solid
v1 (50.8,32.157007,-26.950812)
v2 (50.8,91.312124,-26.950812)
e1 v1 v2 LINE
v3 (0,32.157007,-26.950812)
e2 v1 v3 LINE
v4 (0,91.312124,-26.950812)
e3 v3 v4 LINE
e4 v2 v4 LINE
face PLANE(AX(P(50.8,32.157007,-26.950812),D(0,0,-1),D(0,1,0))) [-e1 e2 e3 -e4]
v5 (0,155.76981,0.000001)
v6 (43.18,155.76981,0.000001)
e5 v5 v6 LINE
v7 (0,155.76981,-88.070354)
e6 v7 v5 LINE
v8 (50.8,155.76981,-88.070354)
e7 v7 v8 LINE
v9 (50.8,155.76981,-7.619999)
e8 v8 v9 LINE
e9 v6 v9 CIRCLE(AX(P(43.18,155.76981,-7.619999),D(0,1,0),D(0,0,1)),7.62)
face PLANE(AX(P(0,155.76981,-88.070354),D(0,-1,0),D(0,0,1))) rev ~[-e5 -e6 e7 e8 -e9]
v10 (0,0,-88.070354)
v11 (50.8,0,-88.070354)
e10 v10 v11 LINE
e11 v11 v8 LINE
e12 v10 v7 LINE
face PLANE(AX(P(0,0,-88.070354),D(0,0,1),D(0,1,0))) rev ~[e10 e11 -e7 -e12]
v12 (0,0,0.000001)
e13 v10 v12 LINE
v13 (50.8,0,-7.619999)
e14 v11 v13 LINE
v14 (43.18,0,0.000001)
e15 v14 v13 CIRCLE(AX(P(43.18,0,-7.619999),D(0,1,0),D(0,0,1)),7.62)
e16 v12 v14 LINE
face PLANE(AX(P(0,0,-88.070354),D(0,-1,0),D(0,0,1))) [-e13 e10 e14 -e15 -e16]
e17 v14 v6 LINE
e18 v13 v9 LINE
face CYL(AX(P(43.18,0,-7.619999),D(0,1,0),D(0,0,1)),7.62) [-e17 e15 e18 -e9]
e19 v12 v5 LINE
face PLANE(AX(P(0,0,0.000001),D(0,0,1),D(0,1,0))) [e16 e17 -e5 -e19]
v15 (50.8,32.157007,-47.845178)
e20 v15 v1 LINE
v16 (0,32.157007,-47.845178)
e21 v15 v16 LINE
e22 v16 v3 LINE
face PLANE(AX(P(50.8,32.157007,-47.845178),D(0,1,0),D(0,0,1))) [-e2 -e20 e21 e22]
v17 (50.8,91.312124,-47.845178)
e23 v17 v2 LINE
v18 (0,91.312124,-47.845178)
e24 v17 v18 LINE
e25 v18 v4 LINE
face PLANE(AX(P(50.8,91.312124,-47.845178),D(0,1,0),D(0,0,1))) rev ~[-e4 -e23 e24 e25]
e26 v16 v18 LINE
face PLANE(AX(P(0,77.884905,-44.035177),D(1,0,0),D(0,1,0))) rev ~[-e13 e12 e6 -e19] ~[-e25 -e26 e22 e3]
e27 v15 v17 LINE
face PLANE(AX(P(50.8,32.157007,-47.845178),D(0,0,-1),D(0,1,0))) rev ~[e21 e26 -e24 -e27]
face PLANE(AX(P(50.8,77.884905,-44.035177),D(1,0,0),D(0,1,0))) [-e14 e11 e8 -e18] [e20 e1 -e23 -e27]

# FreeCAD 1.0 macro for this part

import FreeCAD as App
import Part
import Sketcher

V = App.Vector
Q = App.Units.Quantity


def edges_at(feature, points):
    """Names of the edges that pass closest to the given points."""
    edges = feature.Shape.Edges
    near = lambda p: min(range(len(edges)), key=lambda i: edges[i].distToShape(Part.Vertex(*p))[0])
    return sorted({f"Edge{near(p) + 1}" for p in points})

doc = App.newDocument("Part")
params = doc.addObject("Spreadsheet::Sheet", "Params")
for row, (alias, value) in enumerate([
    ("pad1_length", "2 in"),
    ("fillet_radius", "0.3 in"),
    ("pocket1_length", "2 in"),
], start=1):
    params.set(f"A{row}", alias)
    params.set(f"B{row}", "=" + value)
    params.setAlias(f"B{row}", alias)

body = doc.addObject("PartDesign::Body", "Body")

# Sketch on YZ plane
sketch1 = doc.addObject("Sketcher::SketchObject", "Sketch")
body.addObject(sketch1)
sketch1.AttachmentSupport = (doc.YZ_Plane, [""])
sketch1.MapMode = "FlatFace"
sketch1.addGeometry(Part.LineSegment(V(0, 0, 0), V(0, -88, 0)), False)
sketch1.addGeometry(Part.LineSegment(V(0, -88, 0), V(156, -88, 0)), False)
sketch1.addGeometry(Part.LineSegment(V(156, -88, 0), V(156, 0, 0)), False)
sketch1.addGeometry(Part.LineSegment(V(156, 0, 0), V(0, 0, 0)), False)
sketch1.addConstraint(Sketcher.Constraint("Coincident", 0, 2, 1, 1))
sketch1.addConstraint(Sketcher.Constraint("Coincident", 1, 2, 2, 1))
sketch1.addConstraint(Sketcher.Constraint("Coincident", 2, 2, 3, 1))
sketch1.addConstraint(Sketcher.Constraint("Coincident", 3, 2, 0, 1))
sketch1.addConstraint(Sketcher.Constraint("Vertical", 0))
sketch1.addConstraint(Sketcher.Constraint("Horizontal", 1))
sketch1.addConstraint(Sketcher.Constraint("Vertical", 2))
sketch1.addConstraint(Sketcher.Constraint("Horizontal", 3))
sketch1.addConstraint(Sketcher.Constraint("Coincident", 3, 2, -1, 1))
sketch1.addConstraint(Sketcher.Constraint("DistanceX", 1, 1, 1, 2, Q("155.76981 mm")))
sketch1.addConstraint(Sketcher.Constraint("DistanceY", 0, 2, 0, 1, Q("88.070355 mm")))
pad1 = doc.addObject("PartDesign::Pad", "Pad")
body.addObject(pad1)
pad1.Profile = sketch1
pad1.setExpression("Length", "Params.pad1_length")
doc.recompute()

fillet = doc.addObject("PartDesign::Fillet", "Fillet")
body.addObject(fillet)
fillet.Base = (pad1, edges_at(pad1, [(50.8, 77.885, 0)]))
fillet.setExpression("Radius", "Params.fillet_radius")

# Sketch on YZ plane
sketch2 = doc.addObject("Sketcher::SketchObject", "Sketch001")
body.addObject(sketch2)
sketch2.AttachmentSupport = (doc.YZ_Plane, [""])
sketch2.MapMode = "FlatFace"
sketch2.AttachmentOffset = App.Placement(V(0, 0, 2 * 25.4), App.Rotation())
sketch2.addGeometry(Part.LineSegment(V(32, -27, 0), V(32, -48, 0)), False)
sketch2.addGeometry(Part.LineSegment(V(32, -48, 0), V(91, -48, 0)), False)
sketch2.addGeometry(Part.LineSegment(V(91, -48, 0), V(91, -27, 0)), False)
sketch2.addGeometry(Part.LineSegment(V(91, -27, 0), V(32, -27, 0)), False)
sketch2.addConstraint(Sketcher.Constraint("Coincident", 0, 2, 1, 1))
sketch2.addConstraint(Sketcher.Constraint("Coincident", 1, 2, 2, 1))
sketch2.addConstraint(Sketcher.Constraint("Coincident", 2, 2, 3, 1))
sketch2.addConstraint(Sketcher.Constraint("Coincident", 3, 2, 0, 1))
sketch2.addConstraint(Sketcher.Constraint("Vertical", 0))
sketch2.addConstraint(Sketcher.Constraint("Horizontal", 1))
sketch2.addConstraint(Sketcher.Constraint("Vertical", 2))
sketch2.addConstraint(Sketcher.Constraint("Horizontal", 3))
sketch2.addConstraint(Sketcher.Constraint("DistanceX", 1, 1, 1, 2, Q("59.155117 mm")))
sketch2.addConstraint(Sketcher.Constraint("DistanceY", 0, 2, 0, 1, Q("20.894366 mm")))
sketch2.addConstraint(Sketcher.Constraint("DistanceY", 2, 2, -1, 1, Q("26.950812 mm")))
sketch2.addConstraint(Sketcher.Constraint("DistanceX", -1, 1, 0, 2, Q("32.157007 mm")))
pocket1 = doc.addObject("PartDesign::Pocket", "Pocket")
body.addObject(pocket1)
pocket1.Profile = sketch2
pocket1.setExpression("Length", "Params.pocket1_length")

doc.recompute()
